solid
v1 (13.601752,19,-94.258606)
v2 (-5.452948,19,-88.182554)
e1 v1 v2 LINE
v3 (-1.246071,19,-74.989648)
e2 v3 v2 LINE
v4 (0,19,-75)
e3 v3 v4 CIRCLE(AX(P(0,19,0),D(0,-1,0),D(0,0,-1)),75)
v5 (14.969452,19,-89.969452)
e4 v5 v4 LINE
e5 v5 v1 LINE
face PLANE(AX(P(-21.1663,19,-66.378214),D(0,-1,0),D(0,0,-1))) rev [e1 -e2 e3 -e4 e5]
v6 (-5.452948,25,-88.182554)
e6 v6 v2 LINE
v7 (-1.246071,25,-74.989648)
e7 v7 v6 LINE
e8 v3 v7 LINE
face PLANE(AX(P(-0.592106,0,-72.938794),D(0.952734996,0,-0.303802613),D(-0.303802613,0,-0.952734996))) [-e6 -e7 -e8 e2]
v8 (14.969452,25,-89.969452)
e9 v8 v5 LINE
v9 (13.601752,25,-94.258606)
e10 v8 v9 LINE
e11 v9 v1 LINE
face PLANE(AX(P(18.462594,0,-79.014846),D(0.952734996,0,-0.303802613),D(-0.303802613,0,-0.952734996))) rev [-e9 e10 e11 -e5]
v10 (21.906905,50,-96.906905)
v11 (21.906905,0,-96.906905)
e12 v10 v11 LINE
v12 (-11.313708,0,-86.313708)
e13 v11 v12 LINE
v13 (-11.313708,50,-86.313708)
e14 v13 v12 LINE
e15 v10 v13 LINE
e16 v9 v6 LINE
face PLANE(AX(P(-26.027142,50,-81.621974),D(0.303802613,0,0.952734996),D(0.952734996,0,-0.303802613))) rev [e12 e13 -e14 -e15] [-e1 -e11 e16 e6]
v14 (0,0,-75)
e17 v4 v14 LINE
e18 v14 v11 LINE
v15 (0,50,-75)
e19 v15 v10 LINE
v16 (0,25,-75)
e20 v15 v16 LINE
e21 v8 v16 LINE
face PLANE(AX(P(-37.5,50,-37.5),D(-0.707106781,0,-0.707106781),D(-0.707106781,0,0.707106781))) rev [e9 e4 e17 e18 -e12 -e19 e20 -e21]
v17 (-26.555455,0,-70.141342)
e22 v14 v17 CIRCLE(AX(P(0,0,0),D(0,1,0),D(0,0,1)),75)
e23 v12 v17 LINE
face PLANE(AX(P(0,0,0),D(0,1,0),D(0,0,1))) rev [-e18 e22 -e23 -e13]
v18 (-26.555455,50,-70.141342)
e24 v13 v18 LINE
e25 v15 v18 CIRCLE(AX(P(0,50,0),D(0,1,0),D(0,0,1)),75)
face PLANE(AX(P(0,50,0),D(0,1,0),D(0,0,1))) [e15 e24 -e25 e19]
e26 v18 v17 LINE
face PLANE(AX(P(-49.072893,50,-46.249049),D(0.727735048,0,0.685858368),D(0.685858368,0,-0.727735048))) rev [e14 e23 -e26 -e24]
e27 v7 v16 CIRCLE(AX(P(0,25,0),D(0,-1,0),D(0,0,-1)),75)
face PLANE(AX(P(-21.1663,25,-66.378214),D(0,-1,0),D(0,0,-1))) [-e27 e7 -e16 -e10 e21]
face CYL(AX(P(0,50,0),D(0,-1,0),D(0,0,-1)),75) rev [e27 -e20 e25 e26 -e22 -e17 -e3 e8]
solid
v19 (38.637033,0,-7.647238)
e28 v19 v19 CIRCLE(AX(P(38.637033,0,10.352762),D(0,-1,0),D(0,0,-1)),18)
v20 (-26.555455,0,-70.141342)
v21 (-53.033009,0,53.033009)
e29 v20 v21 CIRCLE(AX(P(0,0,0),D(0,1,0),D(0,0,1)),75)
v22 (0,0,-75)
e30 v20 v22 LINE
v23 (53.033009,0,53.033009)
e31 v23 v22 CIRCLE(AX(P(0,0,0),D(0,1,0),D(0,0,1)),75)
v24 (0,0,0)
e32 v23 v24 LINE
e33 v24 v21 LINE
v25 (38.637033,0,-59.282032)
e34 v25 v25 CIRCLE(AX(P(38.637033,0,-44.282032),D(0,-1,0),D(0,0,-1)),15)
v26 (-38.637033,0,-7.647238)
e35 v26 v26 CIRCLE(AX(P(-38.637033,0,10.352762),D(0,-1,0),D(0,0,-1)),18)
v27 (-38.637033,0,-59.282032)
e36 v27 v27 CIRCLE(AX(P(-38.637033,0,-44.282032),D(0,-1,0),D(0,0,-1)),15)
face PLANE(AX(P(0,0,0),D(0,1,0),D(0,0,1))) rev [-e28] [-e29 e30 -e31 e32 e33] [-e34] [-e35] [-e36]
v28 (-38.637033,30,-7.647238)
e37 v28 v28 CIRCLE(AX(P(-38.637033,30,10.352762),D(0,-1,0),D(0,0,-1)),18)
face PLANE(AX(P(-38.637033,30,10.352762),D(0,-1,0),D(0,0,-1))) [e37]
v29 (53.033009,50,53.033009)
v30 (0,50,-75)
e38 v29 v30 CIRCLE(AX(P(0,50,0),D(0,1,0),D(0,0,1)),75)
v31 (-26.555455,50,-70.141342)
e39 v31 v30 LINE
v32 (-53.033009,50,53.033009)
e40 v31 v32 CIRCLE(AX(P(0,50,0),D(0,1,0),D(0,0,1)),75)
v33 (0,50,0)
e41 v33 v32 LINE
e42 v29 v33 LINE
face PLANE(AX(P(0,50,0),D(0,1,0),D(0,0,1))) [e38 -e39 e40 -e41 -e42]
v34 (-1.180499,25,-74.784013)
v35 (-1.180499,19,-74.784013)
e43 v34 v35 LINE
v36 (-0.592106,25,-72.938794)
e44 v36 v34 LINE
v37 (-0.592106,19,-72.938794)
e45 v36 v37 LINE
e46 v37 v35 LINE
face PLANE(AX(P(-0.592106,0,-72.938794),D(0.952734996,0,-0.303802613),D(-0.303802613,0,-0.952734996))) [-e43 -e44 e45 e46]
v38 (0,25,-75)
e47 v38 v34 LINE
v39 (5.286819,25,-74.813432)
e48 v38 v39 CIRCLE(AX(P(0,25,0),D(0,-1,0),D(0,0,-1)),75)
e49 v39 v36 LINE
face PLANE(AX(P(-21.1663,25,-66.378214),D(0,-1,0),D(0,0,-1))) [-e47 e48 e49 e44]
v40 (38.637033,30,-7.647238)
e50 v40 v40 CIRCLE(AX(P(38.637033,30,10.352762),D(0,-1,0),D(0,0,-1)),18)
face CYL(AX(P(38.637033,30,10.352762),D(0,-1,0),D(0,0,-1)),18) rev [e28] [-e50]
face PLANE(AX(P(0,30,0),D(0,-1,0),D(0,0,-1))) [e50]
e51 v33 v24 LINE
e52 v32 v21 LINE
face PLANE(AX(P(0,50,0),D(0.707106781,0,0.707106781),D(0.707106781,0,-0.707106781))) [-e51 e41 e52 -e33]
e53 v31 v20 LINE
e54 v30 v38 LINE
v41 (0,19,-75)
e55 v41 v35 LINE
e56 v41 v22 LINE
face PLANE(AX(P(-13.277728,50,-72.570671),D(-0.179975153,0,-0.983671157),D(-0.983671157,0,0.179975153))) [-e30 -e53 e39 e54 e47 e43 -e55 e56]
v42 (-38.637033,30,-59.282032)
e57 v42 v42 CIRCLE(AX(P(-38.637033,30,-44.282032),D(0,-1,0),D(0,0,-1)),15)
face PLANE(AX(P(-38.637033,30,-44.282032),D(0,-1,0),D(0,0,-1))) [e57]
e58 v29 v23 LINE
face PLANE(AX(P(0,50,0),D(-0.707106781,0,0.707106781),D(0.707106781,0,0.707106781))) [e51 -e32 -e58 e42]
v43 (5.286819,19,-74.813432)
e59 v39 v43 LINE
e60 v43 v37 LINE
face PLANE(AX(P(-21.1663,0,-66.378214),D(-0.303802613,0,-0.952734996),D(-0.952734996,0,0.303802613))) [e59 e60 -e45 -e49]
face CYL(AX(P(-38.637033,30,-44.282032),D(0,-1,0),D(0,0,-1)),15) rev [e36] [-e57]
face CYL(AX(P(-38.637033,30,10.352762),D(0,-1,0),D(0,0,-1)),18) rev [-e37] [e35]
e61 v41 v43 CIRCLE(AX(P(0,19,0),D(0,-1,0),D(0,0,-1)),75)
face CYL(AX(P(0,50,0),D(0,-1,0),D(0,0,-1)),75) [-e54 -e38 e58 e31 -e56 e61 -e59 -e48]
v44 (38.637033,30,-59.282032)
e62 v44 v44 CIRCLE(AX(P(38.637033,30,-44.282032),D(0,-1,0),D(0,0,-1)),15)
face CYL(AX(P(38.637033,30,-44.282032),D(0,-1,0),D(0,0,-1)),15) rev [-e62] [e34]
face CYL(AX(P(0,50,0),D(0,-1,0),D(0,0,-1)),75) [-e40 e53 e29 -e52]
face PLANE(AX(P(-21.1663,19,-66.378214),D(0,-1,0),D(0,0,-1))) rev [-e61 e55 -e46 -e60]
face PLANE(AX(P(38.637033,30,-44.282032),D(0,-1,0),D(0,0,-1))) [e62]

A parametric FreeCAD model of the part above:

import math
import FreeCAD as App
import Part
import Sketcher
from FreeCAD import Vector
Q = App.Units.Quantity

doc = App.newDocument("Part")
params = doc.addObject("Spreadsheet::Sheet", "Params")
for row, (alias, value) in enumerate([
    ("sketch1_radius", "75 mm"),
    ("pad1_length", "50 mm"),
    ("sketch2_width", "20 mm"),
    ("sketch2_height", "6 mm"),
    ("pocket1_length", "16 mm"),
    ("sketch3_diameter", "36 mm"),
    ("pocket2_length", "30 mm"),
    ("sketch4_diameter", "36 mm"),
    ("pocket3_length", "30 mm"),
    ("sketch5_diameter", "30 mm"),
    ("pocket4_length", "30 mm"),
    ("sketch6_diameter", "30 mm"),
    ("pocket5_length", "30 mm"),
], start=1):
    params.set(f"A{row}", alias)
    params.set(f"B{row}", "=" + value)
    params.setAlias(f"B{row}", alias)

body = doc.addObject("PartDesign::Body", "Body")
body.AllowCompound = True

# Sketch on XZ plane
sketch1 = doc.addObject("Sketcher::SketchObject", "Sketch")
body.addObject(sketch1)
sketch1.AttachmentSupport = (doc.XZ_Plane, [""])
sketch1.MapMode = "FlatFace"
sketch1.addGeometry([
    Part.LineSegment(Vector(0, 0, 0), Vector(53, 53, 0)),  # 0
    Part.ArcOfCircle(Part.Circle(Vector(0, 0, 0), Vector(0, 0, 1), 75), math.radians(0), math.radians(45)),  # 1
    Part.ArcOfCircle(Part.Circle(Vector(0, 0, 0), Vector(0, 0, 1), 75), math.radians(-90), math.radians(0)),  # 2
    Part.LineSegment(Vector(0, -75, 0), Vector(-27, -70, 0)),  # 3
    Part.ArcOfCircle(Part.Circle(Vector(0, 0, 0), Vector(0, 0, 1), 75), math.radians(-180), math.radians(-111)),  # 4
    Part.ArcOfCircle(Part.Circle(Vector(0, 0, 0), Vector(0, 0, 1), 75), math.radians(135), math.radians(180)),  # 5
    Part.LineSegment(Vector(-53, 53, 0), Vector(0, 0, 0)),  # 6
    Part.ArcOfCircle(Part.Circle(Vector(0, 0, 0), Vector(0, 0, 1), 75), math.radians(-111), math.radians(-90)),  # 7
    Part.LineSegment(Vector(0, -75, 0), Vector(22, -97, 0)),  # 8
    Part.LineSegment(Vector(22, -97, 0), Vector(-11, -86, 0)),  # 9
    Part.LineSegment(Vector(-11, -86, 0), Vector(-27, -70, 0)),  # 10
], False)
sketch1.addConstraint([
    Sketcher.Constraint("Coincident", 0, 2, 1, 2),
    Sketcher.Constraint("Tangent", 1, 1, 2, 2),
    Sketcher.Constraint("Coincident", 2, 1, 3, 1),
    Sketcher.Constraint("Coincident", 3, 2, 4, 2),
    Sketcher.Constraint("Tangent", 4, 1, 5, 2),
    Sketcher.Constraint("Coincident", 5, 1, 6, 1),
    Sketcher.Constraint("Coincident", 6, 2, 0, 1),
    Sketcher.Constraint("Coincident", 7, 2, 8, 1),
    Sketcher.Constraint("Coincident", 8, 2, 9, 1),
    Sketcher.Constraint("Coincident", 9, 2, 10, 1),
    Sketcher.Constraint("Coincident", 10, 2, 7, 1),
    Sketcher.Constraint("Coincident", 1, 3, -1, 1),
    Sketcher.Constraint("Coincident", 4, 3, -1, 1),
    Sketcher.Constraint("Coincident", 7, 3, -1, 1),
    Sketcher.Constraint("Coincident", 6, 2, -1, 1),
    Sketcher.Constraint("Coincident", 7, 2, 2, 1),
    Sketcher.Constraint("Coincident", 10, 2, 3, 2),
    Sketcher.Constraint("Equal", 1, 2),
    Sketcher.Constraint("Equal", 4, 5),
    Sketcher.Constraint("PointOnObject", 1, 1, -1),
    Sketcher.Constraint("PointOnObject", 2, 1, -2),
    Sketcher.Constraint("PointOnObject", 4, 1, -1),
    Sketcher.Constraint("Perpendicular", 0, 6),
    Sketcher.Constraint("Parallel", 6, 8),
    Sketcher.Constraint("Horizontal", 0, 2, 5, 1),
    Sketcher.Constraint("Radius", 1, Q("75 mm")),
    Sketcher.Constraint("DistanceY", 3, 2, -1, 1, Q("70.141342 mm")),
    Sketcher.Constraint("DistanceX", 9, 2, -1, 1, Q("11.313708 mm")),
    Sketcher.Constraint("DistanceY", 9, 2, -1, 1, Q("86.313708 mm")),
    Sketcher.Constraint("DistanceX", 3, 2, 8, 2, Q("48.46236 mm")),
])
sketch1.setExpression("Constraints[25]", "Params.sketch1_radius")
pad1 = doc.addObject("PartDesign::Pad", "Pad")
body.addObject(pad1)
pad1.Profile = sketch1
pad1.setExpression("Length", "Params.pad1_length")
pad1.Reversed = True

# Sketch on an angled plane
sketch2 = doc.addObject("Sketcher::SketchObject", "Sketch001")
body.addObject(sketch2)
sketch2.Placement = App.Placement(Vector(-26.027142, 0, -81.621974), App.Rotation(Vector(-0.952734996, 0, 0.303802613), Vector(0, 1, 0), Vector(-0.303802613, 0, -0.952734996), "ZXY"))
sketch2.addGeometry([
    Part.LineSegment(Vector(-42, 25, 0), Vector(-42, 19, 0)),
    Part.LineSegment(Vector(-42, 19, 0), Vector(-22, 19, 0)),
    Part.LineSegment(Vector(-22, 19, 0), Vector(-22, 25, 0)),
    Part.LineSegment(Vector(-22, 25, 0), Vector(-42, 25, 0)),
], False)
sketch2.addConstraint([
    Sketcher.Constraint("Coincident", 0, 2, 1, 1),
    Sketcher.Constraint("Coincident", 1, 2, 2, 1),
    Sketcher.Constraint("Coincident", 2, 2, 3, 1),
    Sketcher.Constraint("Coincident", 3, 2, 0, 1),
    Sketcher.Constraint("Vertical", 0),
    Sketcher.Constraint("Horizontal", 1),
    Sketcher.Constraint("Vertical", 2),
    Sketcher.Constraint("Horizontal", 3),
    Sketcher.Constraint("DistanceX", 1, 1, 1, 2, Q("20 mm")),
    Sketcher.Constraint("DistanceY", 0, 2, 0, 1, Q("6 mm")),
    Sketcher.Constraint("DistanceY", -1, 1, 0, 2, Q("19 mm")),
    Sketcher.Constraint("DistanceX", 0, 2, -1, 1, Q("41.594876 mm")),
])
sketch2.setExpression("Constraints[8]", "Params.sketch2_width")
sketch2.setExpression("Constraints[9]", "Params.sketch2_height")
pocket1 = doc.addObject("PartDesign::Pocket", "Pocket")
body.addObject(pocket1)
pocket1.Profile = sketch2
pocket1.setExpression("Length", "Params.pocket1_length")

# Sketch on XZ plane
sketch3 = doc.addObject("Sketcher::SketchObject", "Sketch002")
body.addObject(sketch3)
sketch3.AttachmentSupport = (doc.XZ_Plane, [""])
sketch3.MapMode = "FlatFace"
sketch3.addGeometry(Part.Circle(Vector(-39, 10, 0), Vector(0, 0, 1), 18), False)
sketch3.addConstraint([
    Sketcher.Constraint("Diameter", 0, Q("36 mm")),
    Sketcher.Constraint("DistanceY", -1, 1, 0, 3, Q("10.352762 mm")),
    Sketcher.Constraint("DistanceX", 0, 3, -1, 1, Q("38.637033 mm")),
])
sketch3.setExpression("Constraints[0]", "Params.sketch3_diameter")
pocket2 = doc.addObject("PartDesign::Pocket", "Pocket001")
body.addObject(pocket2)
pocket2.Profile = sketch3
pocket2.setExpression("Length", "Params.pocket2_length")

# Sketch on XZ plane
sketch4 = doc.addObject("Sketcher::SketchObject", "Sketch003")
body.addObject(sketch4)
sketch4.AttachmentSupport = (doc.XZ_Plane, [""])
sketch4.MapMode = "FlatFace"
sketch4.addGeometry(Part.Circle(Vector(39, 10, 0), Vector(0, 0, 1), 18), False)
sketch4.addConstraint([
    Sketcher.Constraint("Diameter", 0, Q("36 mm")),
    Sketcher.Constraint("DistanceY", -1, 1, 0, 3, Q("10.352762 mm")),
    Sketcher.Constraint("DistanceX", -1, 1, 0, 3, Q("38.637033 mm")),
])
sketch4.setExpression("Constraints[0]", "Params.sketch4_diameter")
pocket3 = doc.addObject("PartDesign::Pocket", "Pocket002")
body.addObject(pocket3)
pocket3.Profile = sketch4
pocket3.setExpression("Length", "Params.pocket3_length")

# Sketch on XZ plane
sketch5 = doc.addObject("Sketcher::SketchObject", "Sketch004")
body.addObject(sketch5)
sketch5.AttachmentSupport = (doc.XZ_Plane, [""])
sketch5.MapMode = "FlatFace"
sketch5.addGeometry(Part.Circle(Vector(-39, -44, 0), Vector(0, 0, 1), 15), False)
sketch5.addConstraint([
    Sketcher.Constraint("Diameter", 0, Q("30 mm")),
    Sketcher.Constraint("DistanceX", 0, 3, -1, 1, Q("38.637033 mm")),
    Sketcher.Constraint("DistanceY", 0, 3, -1, 1, Q("44.282032 mm")),
])
sketch5.setExpression("Constraints[0]", "Params.sketch5_diameter")
pocket4 = doc.addObject("PartDesign::Pocket", "Pocket003")
body.addObject(pocket4)
pocket4.Profile = sketch5
pocket4.setExpression("Length", "Params.pocket4_length")

# Sketch on XZ plane
sketch6 = doc.addObject("Sketcher::SketchObject", "Sketch005")
body.addObject(sketch6)
sketch6.AttachmentSupport = (doc.XZ_Plane, [""])
sketch6.MapMode = "FlatFace"
sketch6.addGeometry(Part.Circle(Vector(39, -44, 0), Vector(0, 0, 1), 15), False)
sketch6.addConstraint([
    Sketcher.Constraint("Diameter", 0, Q("30 mm")),
    Sketcher.Constraint("DistanceX", -1, 1, 0, 3, Q("38.637033 mm")),
    Sketcher.Constraint("DistanceY", 0, 3, -1, 1, Q("44.282032 mm")),
])
sketch6.setExpression("Constraints[0]", "Params.sketch6_diameter")
pocket5 = doc.addObject("PartDesign::Pocket", "Pocket004")
body.addObject(pocket5)
pocket5.Profile = sketch6
pocket5.setExpression("Length", "Params.pocket5_length")

doc.recompute()
